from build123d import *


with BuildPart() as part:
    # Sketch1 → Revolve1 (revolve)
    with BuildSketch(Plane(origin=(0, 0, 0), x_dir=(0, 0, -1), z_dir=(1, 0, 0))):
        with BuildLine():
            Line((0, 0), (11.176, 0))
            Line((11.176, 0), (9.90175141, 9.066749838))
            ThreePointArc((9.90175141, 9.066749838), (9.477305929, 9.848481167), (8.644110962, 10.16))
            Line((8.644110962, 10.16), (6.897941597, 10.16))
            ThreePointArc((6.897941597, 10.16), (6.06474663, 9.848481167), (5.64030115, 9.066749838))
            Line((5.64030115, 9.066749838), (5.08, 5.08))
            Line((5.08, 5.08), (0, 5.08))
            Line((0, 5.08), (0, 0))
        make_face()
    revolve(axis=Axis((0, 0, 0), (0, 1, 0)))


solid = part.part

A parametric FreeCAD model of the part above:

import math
import FreeCAD as App
import Part
import Sketcher
from FreeCAD import Vector
Q = App.Units.Quantity

doc = App.newDocument("Part")
body = doc.addObject("PartDesign::Body", "Body")

sketch1 = doc.addObject("Sketcher::SketchObject", "Sketch")
body.addObject(sketch1)
sketch1.AttachmentSupport = (doc.YZ_Plane, [""])
sketch1.MapMode = "FlatFace"
sketch1.addGeometry(Part.LineSegment(Vector(0, 0, 0), Vector(0, -11.2, 0)), False)
sketch1.addGeometry(Part.LineSegment(Vector(0, -11.2, 0), Vector(9.1, -9.9, 0)), False)
sketch1.addGeometry(Part.ArcOfCircle(Part.Circle(Vector(8.9, -8.6, 0), Vector(0, 0, 1), 1.3), math.radians(-82), math.radians(0)), False)
sketch1.addGeometry(Part.LineSegment(Vector(10.2, -8.6, 0), Vector(10.2, -6.9, 0)), False)
sketch1.addGeometry(Part.ArcOfCircle(Part.Circle(Vector(8.9, -6.9, 0), Vector(0, 0, 1), 1.3), math.radians(0), math.radians(82)), False)
sketch1.addGeometry(Part.LineSegment(Vector(9.1, -5.6, 0), Vector(5.1, -5.1, 0)), False)
sketch1.addGeometry(Part.LineSegment(Vector(5.1, -5.1, 0), Vector(5.1, 0, 0)), False)
sketch1.addGeometry(Part.LineSegment(Vector(5.1, 0, 0), Vector(0, 0, 0)), False)
sketch1.addConstraint(Sketcher.Constraint("Coincident", 0, 2, 1, 1))
sketch1.addConstraint(Sketcher.Constraint("Tangent", 1, 2, 2, 1))
sketch1.addConstraint(Sketcher.Constraint("Tangent", 2, 2, 3, 1))
sketch1.addConstraint(Sketcher.Constraint("Tangent", 3, 2, 4, 1))
sketch1.addConstraint(Sketcher.Constraint("Tangent", 4, 2, 5, 1))
sketch1.addConstraint(Sketcher.Constraint("Coincident", 5, 2, 6, 1))
sketch1.addConstraint(Sketcher.Constraint("Coincident", 6, 2, 7, 1))
sketch1.addConstraint(Sketcher.Constraint("Coincident", 7, 2, 0, 1))
sketch1.addConstraint(Sketcher.Constraint("Vertical", 0))
sketch1.addConstraint(Sketcher.Constraint("Vertical", 3))
sketch1.addConstraint(Sketcher.Constraint("Vertical", 6))
sketch1.addConstraint(Sketcher.Constraint("Horizontal", 7))
sketch1.addConstraint(Sketcher.Constraint("Coincident", 7, 2, -1, 1))
sketch1.addConstraint(Sketcher.Constraint("Equal", 2, 4))
sketch1.addConstraint(Sketcher.Constraint("Vertical", 1, 2, 4, 2))
sketch1.addConstraint(Sketcher.Constraint("Equal", 7, 6))
sketch1.addConstraint(Sketcher.Constraint("Radius", 2, Q("0.05 in")))
sketch1.addConstraint(Sketcher.Constraint("DistanceX", 7, 2, 7, 1, Q("0.2 in")))
sketch1.addConstraint(Sketcher.Constraint("Angle", 1, Q("8 deg")))
sketch1.addConstraint(Sketcher.Constraint("DistanceY", 0, 2, 0, 1, Q("0.44 in")))
sketch1.addConstraint(Sketcher.Constraint("DistanceX", -1, 1, 2, 2, Q("0.4 in")))
revolution = doc.addObject("PartDesign::Revolution", "Revolution")
body.addObject(revolution)
revolution.Profile = sketch1
revolution.ReferenceAxis = (sketch1, ["H_Axis"])
revolution.Angle = 360

doc.recompute()
